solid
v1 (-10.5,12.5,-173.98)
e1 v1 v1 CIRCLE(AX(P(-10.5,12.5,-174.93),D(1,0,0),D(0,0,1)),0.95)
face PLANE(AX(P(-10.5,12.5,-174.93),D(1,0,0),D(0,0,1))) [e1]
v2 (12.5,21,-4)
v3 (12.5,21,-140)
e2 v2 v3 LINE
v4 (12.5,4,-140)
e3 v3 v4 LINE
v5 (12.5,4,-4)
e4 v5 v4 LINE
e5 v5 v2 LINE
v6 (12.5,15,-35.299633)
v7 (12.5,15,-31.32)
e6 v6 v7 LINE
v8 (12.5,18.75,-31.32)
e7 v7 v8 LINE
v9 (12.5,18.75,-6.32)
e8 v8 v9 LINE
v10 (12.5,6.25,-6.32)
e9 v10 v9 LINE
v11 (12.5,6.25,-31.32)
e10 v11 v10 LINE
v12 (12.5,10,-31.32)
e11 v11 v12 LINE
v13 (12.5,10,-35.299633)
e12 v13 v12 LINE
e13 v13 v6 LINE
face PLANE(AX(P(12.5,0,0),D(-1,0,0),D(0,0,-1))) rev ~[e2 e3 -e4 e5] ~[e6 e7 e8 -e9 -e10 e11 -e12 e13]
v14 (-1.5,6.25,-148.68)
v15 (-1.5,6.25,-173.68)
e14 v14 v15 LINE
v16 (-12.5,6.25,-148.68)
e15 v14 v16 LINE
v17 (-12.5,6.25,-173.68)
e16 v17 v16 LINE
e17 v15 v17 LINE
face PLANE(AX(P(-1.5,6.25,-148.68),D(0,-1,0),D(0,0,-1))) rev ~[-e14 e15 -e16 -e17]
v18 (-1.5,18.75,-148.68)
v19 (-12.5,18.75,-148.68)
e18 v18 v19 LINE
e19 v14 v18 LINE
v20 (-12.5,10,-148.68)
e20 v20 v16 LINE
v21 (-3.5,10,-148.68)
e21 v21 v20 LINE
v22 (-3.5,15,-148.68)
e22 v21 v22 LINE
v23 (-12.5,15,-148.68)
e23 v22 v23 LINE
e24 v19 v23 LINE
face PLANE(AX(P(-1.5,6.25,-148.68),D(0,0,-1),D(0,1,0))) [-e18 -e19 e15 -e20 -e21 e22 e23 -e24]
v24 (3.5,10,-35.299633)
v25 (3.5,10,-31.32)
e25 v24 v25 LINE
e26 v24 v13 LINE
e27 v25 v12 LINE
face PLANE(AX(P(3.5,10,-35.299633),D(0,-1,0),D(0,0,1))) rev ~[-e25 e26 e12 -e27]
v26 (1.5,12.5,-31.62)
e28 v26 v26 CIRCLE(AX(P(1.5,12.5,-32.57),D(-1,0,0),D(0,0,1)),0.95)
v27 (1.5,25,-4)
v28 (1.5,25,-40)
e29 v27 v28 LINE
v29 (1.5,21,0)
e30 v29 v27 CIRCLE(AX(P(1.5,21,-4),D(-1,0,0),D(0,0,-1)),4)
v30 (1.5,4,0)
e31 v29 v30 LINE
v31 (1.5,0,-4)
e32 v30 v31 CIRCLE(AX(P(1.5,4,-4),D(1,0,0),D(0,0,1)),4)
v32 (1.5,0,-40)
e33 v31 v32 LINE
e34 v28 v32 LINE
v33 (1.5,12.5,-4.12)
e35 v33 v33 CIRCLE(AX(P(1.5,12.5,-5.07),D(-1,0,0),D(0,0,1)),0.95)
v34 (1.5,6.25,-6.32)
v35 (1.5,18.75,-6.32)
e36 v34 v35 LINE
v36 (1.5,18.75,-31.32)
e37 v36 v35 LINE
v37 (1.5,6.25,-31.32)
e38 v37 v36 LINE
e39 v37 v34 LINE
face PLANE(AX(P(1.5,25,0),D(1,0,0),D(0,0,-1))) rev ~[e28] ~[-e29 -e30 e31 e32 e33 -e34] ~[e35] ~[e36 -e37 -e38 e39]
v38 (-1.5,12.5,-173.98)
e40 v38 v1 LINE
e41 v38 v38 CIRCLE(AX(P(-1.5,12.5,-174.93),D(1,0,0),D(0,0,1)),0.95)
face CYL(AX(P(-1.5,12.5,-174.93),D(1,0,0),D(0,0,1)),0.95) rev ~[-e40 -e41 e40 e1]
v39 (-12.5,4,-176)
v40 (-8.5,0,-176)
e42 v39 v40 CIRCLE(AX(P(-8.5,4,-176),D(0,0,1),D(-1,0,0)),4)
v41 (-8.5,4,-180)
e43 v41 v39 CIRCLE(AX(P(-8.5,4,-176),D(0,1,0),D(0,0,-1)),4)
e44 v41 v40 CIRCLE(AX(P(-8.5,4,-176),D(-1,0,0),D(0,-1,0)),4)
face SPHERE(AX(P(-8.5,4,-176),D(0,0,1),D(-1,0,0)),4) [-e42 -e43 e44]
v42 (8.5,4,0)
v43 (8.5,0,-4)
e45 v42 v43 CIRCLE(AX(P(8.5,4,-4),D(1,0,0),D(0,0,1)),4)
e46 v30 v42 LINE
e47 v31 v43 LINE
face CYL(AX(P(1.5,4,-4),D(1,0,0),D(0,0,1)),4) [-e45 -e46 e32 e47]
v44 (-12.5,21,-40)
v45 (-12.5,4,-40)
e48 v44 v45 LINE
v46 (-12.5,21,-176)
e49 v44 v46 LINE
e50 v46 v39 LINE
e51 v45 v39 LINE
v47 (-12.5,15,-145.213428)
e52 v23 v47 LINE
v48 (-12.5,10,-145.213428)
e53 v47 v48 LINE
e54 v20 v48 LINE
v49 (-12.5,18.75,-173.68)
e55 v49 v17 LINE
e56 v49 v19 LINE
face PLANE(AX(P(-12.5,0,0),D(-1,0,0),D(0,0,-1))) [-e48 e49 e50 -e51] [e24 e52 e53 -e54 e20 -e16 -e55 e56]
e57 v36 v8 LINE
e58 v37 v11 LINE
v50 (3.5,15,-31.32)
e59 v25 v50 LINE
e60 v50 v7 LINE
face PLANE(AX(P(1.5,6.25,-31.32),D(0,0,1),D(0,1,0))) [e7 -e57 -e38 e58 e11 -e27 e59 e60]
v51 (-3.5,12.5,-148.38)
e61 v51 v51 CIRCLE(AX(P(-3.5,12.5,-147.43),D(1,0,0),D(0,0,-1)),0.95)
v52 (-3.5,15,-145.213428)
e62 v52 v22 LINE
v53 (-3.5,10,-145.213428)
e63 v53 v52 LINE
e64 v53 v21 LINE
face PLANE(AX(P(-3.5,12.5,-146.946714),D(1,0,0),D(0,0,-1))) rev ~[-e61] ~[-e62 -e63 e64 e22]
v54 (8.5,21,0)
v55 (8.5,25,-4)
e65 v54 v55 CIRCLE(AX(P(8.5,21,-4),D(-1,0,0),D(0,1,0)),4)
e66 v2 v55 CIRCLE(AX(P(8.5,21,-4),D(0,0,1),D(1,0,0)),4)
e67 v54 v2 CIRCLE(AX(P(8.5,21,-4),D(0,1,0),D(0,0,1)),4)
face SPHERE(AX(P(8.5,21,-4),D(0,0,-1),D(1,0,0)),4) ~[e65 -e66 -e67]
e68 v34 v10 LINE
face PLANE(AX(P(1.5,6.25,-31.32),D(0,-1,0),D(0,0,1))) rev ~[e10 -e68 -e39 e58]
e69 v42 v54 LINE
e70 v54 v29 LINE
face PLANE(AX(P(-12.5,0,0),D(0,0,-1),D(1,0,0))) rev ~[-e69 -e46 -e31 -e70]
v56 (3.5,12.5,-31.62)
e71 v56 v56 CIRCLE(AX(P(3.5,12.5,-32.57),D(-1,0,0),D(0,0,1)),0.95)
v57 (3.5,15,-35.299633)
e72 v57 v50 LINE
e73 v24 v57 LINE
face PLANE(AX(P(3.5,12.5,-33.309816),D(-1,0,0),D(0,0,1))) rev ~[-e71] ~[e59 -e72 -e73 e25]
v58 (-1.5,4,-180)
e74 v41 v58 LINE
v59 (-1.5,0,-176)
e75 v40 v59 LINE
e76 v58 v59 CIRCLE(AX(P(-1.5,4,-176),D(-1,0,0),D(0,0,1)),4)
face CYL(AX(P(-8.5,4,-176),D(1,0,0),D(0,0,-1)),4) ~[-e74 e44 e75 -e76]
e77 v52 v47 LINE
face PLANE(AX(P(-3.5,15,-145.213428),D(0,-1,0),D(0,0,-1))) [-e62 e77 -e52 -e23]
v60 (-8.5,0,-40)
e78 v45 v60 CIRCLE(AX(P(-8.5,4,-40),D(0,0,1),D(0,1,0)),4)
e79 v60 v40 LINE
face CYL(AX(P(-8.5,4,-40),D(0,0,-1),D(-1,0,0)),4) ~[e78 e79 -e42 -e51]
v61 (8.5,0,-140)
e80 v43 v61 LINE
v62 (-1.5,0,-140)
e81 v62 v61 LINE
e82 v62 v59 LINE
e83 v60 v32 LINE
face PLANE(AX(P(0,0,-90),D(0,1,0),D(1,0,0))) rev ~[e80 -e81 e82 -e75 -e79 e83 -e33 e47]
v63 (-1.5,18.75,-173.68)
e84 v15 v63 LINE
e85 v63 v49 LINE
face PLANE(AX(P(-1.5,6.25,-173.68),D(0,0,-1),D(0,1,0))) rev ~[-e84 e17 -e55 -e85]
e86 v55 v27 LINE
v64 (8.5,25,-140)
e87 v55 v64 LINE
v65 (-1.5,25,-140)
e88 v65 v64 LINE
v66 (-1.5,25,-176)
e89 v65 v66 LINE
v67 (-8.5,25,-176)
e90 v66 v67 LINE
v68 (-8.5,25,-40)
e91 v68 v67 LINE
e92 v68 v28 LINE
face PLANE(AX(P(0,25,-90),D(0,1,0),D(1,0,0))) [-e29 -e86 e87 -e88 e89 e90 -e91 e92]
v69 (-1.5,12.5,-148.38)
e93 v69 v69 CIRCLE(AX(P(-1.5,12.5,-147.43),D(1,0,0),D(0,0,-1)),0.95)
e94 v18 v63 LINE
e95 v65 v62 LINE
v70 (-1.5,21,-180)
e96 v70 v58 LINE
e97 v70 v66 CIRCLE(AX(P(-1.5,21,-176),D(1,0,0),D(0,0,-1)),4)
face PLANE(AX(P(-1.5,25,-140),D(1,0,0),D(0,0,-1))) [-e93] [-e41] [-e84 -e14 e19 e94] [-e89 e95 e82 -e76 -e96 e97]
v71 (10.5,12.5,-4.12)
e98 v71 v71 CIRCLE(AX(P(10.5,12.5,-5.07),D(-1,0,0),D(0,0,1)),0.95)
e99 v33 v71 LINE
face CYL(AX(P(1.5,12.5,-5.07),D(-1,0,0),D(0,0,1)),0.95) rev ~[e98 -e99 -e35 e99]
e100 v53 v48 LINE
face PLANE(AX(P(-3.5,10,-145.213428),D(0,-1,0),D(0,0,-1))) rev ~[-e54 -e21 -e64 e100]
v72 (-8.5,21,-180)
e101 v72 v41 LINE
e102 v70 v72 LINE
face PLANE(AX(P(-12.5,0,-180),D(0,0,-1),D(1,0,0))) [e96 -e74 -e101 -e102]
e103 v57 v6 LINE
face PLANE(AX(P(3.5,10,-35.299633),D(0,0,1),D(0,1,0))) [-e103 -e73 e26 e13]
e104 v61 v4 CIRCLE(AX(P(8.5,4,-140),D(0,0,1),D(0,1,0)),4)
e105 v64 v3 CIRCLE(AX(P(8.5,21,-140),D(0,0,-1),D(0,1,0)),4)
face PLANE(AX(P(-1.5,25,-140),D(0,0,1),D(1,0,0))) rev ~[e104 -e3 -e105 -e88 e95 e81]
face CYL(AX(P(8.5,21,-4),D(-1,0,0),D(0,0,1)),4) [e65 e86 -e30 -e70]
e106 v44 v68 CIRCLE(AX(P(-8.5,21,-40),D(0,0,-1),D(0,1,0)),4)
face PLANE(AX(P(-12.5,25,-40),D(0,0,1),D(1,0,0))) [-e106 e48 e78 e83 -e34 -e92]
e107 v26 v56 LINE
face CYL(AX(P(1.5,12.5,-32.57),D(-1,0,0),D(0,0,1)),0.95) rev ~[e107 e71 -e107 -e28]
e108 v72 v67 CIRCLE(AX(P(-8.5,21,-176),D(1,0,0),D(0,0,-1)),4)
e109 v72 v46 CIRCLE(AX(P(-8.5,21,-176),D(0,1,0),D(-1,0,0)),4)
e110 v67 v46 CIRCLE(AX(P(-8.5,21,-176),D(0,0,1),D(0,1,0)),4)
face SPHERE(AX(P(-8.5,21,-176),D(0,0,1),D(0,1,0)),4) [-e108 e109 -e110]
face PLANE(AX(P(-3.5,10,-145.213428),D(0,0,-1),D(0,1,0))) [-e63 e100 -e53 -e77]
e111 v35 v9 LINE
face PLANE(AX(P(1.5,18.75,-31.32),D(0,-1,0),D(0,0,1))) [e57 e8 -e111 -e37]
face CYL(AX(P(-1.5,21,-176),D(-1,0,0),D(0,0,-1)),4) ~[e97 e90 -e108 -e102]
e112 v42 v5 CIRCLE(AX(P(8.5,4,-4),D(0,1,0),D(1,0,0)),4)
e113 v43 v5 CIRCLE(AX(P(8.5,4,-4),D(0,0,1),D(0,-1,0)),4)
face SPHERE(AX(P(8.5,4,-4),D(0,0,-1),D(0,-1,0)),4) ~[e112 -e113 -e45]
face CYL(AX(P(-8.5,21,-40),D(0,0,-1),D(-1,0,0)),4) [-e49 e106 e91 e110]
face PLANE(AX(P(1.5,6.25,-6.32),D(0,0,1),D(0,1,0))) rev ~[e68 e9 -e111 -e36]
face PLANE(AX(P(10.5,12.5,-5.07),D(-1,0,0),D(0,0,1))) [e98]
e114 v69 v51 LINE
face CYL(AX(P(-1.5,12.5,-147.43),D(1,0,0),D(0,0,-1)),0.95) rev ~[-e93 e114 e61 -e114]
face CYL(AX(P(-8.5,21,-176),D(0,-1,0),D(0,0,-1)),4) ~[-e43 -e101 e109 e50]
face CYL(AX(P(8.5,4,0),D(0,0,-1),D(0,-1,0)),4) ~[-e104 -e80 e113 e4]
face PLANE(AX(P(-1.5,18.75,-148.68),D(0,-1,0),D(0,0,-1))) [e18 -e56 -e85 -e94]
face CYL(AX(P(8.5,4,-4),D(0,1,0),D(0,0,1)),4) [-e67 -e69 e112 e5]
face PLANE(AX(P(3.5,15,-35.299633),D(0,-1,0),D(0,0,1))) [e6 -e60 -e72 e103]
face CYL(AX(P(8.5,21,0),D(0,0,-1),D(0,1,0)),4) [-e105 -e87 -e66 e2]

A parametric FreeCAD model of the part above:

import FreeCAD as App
import Part
import Sketcher

V = App.Vector


def edges_at(feature, points):
    """Names of the edges that pass closest to the given points."""
    edges = feature.Shape.Edges
    near = lambda p: min(range(len(edges)), key=lambda i: edges[i].distToShape(Part.Vertex(*p))[0])
    return sorted({f"Edge{near(p) + 1}" for p in points})


def add_polygon(sketch, points):
    """Adds a closed chain of lines whose ends are joined by coincident constraints."""
    first, n = sketch.GeometryCount, len(points)
    for a, b in zip(points, points[1:] + points[:1]):
        sketch.addGeometry(Part.LineSegment(App.Vector(*a, 0), App.Vector(*b, 0)), False)
    for i in range(n):
        sketch.addConstraint(Sketcher.Constraint("Coincident", first + i, 2, first + (i + 1) % n, 1))

doc = App.newDocument("Part")
body = doc.addObject("PartDesign::Body", "Body")

sketch1 = doc.addObject("Sketcher::SketchObject", "Sketch")
body.addObject(sketch1)
sketch1.AttachmentSupport = (doc.XZ_Plane, [""])
sketch1.MapMode = "FlatFace"
add_polygon(sketch1, [(-12.5, -180), (-12.5, 0), (12.5, 0), (12.5, -180)])
sketch1.addConstraint([
    Sketcher.Constraint("Vertical", 0),
    Sketcher.Constraint("Horizontal", 1),
    Sketcher.Constraint("Vertical", 2),
    Sketcher.Constraint("Horizontal", 3),
    Sketcher.Constraint("Symmetric", 0, 2, 1, 2, -1, 1),
    Sketcher.Constraint("DistanceX", 1, 1, 1, 2, 25.0),
    Sketcher.Constraint("DistanceY", 0, 1, 0, 2, 180.0),
])
pad1 = doc.addObject("PartDesign::Pad", "Pad")
body.addObject(pad1)
pad1.Profile = sketch1
pad1.Length = 25
pad1.Reversed = True

sketch2 = doc.addObject("Sketcher::SketchObject", "Sketch001")
body.addObject(sketch2)
sketch2.AttachmentSupport = (doc.XZ_Plane, [""])
sketch2.MapMode = "FlatFace"
sketch2.AttachmentOffset = App.Placement(V(0, 0, -25), App.Rotation())
add_polygon(sketch2, [(-1.5, -180), (-1.5, -140), (12.5, -140), (12.5, -180)])
add_polygon(sketch2, [(-12.5, -40), (-12.5, 0), (1.5, 0), (1.5, -40)])
sketch2.addConstraint([
    Sketcher.Constraint("Vertical", 0),
    Sketcher.Constraint("Horizontal", 1),
    Sketcher.Constraint("Vertical", 2),
    Sketcher.Constraint("Horizontal", 3),
    Sketcher.Constraint("Vertical", 4),
    Sketcher.Constraint("Horizontal", 5),
    Sketcher.Constraint("Vertical", 6),
    Sketcher.Constraint("Horizontal", 7),
    Sketcher.Constraint("PointOnObject", 4, 2, -1),
    Sketcher.Constraint("Equal", 3, 5),
    Sketcher.Constraint("Equal", 2, 4),
    Sketcher.Constraint("DistanceX", 1, 1, 1, 2, 14.0),
    Sketcher.Constraint("DistanceY", 0, 1, 0, 2, 40.0),
    Sketcher.Constraint("DistanceY", 0, 2, -1, 1, 140.0),
    Sketcher.Constraint("DistanceX", 4, 2, 0, 2, 11.0),
    Sketcher.Constraint("DistanceX", 0, 2, -1, 1, 1.5),
])
pocket1 = doc.addObject("PartDesign::Pocket", "Pocket")
body.addObject(pocket1)
pocket1.Profile = sketch2
pocket1.Type = "ThroughAll"
pocket1.Reversed = True

sketch3 = doc.addObject("Sketcher::SketchObject", "Sketch002")
body.addObject(sketch3)
sketch3.AttachmentSupport = (doc.YZ_Plane, [""])
sketch3.MapMode = "FlatFace"
sketch3.AttachmentOffset = App.Placement(V(0, 0, 1.5), App.Rotation())
add_polygon(sketch3, [(18.75, -31.32), (6.25, -31.32), (6.25, -6.32), (18.75, -6.32)])
sketch3.addConstraint([
    Sketcher.Constraint("Horizontal", 0),
    Sketcher.Constraint("Vertical", 1),
    Sketcher.Constraint("Horizontal", 2),
    Sketcher.Constraint("Vertical", 3),
    Sketcher.Constraint("DistanceY", 1, 1, 1, 2, 25.0),
    Sketcher.Constraint("DistanceX", 0, 2, 0, 1, 12.5),
    Sketcher.Constraint("DistanceX", -1, 1, 0, 2, 6.25),
    Sketcher.Constraint("DistanceY", 0, 2, -1, 1, 31.32),
])
pocket2 = doc.addObject("PartDesign::Pocket", "Pocket001")
body.addObject(pocket2)
pocket2.Profile = sketch3
pocket2.Type = "ThroughAll"
pocket2.Reversed = True

sketch4 = doc.addObject("Sketcher::SketchObject", "Sketch003")
body.addObject(sketch4)
sketch4.AttachmentSupport = (doc.YZ_Plane, [""])
sketch4.MapMode = "FlatFace"
sketch4.AttachmentOffset = App.Placement(V(0, 0, 1.5), App.Rotation())
sketch4.addGeometry([
    Part.Circle(V(12.5, -32.57, 0), V(0, 0, 1), 0.95),
    Part.Circle(V(12.5, -5.07, 0), V(0, 0, 1), 0.95),
], False)
sketch4.addConstraint([
    Sketcher.Constraint("Equal", 0, 1),
    Sketcher.Constraint("Vertical", 0, 3, 1, 3),
    Sketcher.Constraint("Diameter", 0, 1.9),
    Sketcher.Constraint("DistanceX", -1, 1, 0, 3, 12.5),
    Sketcher.Constraint("DistanceY", 0, 3, 1, 3, 27.5),
    Sketcher.Constraint("DistanceY", 0, 3, -1, 1, 32.57),
])
pocket3 = doc.addObject("PartDesign::Pocket", "Pocket002")
body.addObject(pocket3)
pocket3.Profile = sketch4
pocket3.Length = 9
pocket3.Reversed = True

sketch5 = doc.addObject("Sketcher::SketchObject", "Sketch004")
body.addObject(sketch5)
sketch5.AttachmentSupport = (doc.YZ_Plane, [""])
sketch5.MapMode = "FlatFace"
sketch5.AttachmentOffset = App.Placement(V(0, 0, -1.5), App.Rotation())
add_polygon(sketch5, [(18.75, -148.68), (6.25, -148.68), (6.25, -173.68), (18.75, -173.68)])
sketch5.addConstraint([
    Sketcher.Constraint("Horizontal", 0),
    Sketcher.Constraint("Vertical", 1),
    Sketcher.Constraint("Horizontal", 2),
    Sketcher.Constraint("Vertical", 3),
    Sketcher.Constraint("DistanceY", 1, 2, 1, 1, 25.0),
    Sketcher.Constraint("DistanceX", 0, 2, 0, 1, 12.5),
    Sketcher.Constraint("DistanceX", -1, 1, 0, 2, 6.25),
    Sketcher.Constraint("DistanceY", 0, 2, -1, 1, 148.68),
])
pocket4 = doc.addObject("PartDesign::Pocket", "Pocket003")
body.addObject(pocket4)
pocket4.Profile = sketch5
pocket4.Type = "ThroughAll"

sketch6 = doc.addObject("Sketcher::SketchObject", "Sketch005")
body.addObject(sketch6)
sketch6.AttachmentSupport = (doc.YZ_Plane, [""])
sketch6.MapMode = "FlatFace"
sketch6.AttachmentOffset = App.Placement(V(0, 0, -1.5), App.Rotation())
sketch6.addGeometry([
    Part.Circle(V(12.5, -147.43, 0), V(0, 0, 1), 0.95),
    Part.Circle(V(12.5, -174.93, 0), V(0, 0, 1), 0.95),
], False)
sketch6.addConstraint([
    Sketcher.Constraint("Equal", 0, 1),
    Sketcher.Constraint("Vertical", 0, 3, 1, 3),
    Sketcher.Constraint("Diameter", 0, 1.9),
    Sketcher.Constraint("DistanceX", -1, 1, 0, 3, 12.5),
    Sketcher.Constraint("DistanceY", 1, 3, 0, 3, 27.5),
    Sketcher.Constraint("DistanceY", 0, 3, -1, 1, 147.43),
])
pocket5 = doc.addObject("PartDesign::Pocket", "Pocket004")
body.addObject(pocket5)
pocket5.Profile = sketch6
pocket5.Length = 9
doc.recompute()

fillet = doc.addObject("PartDesign::Fillet", "Fillet")
body.addObject(fillet)
fillet.Base = (pocket5, edges_at(pocket5, [
    (-12.5, 0, -110),
    (-12.5, 25, -110),
    (12.5, 0, -70),
    (12.5, 25, -70),
]))
fillet.Radius = 4

sketch7 = doc.addObject("Sketcher::SketchObject", "Sketch006")
body.addObject(sketch7)
sketch7.AttachmentSupport = (doc.YZ_Plane, [""])
sketch7.MapMode = "FlatFace"
sketch7.AttachmentOffset = App.Placement(V(0, 0, -3.5), App.Rotation())
add_polygon(sketch7, [(15, -145.213428), (10, -145.213428), (10, -148.68), (15, -148.68)])
sketch7.addConstraint([
    Sketcher.Constraint("Horizontal", 0),
    Sketcher.Constraint("Vertical", 1),
    Sketcher.Constraint("Horizontal", 2),
    Sketcher.Constraint("Vertical", 3),
    Sketcher.Constraint("DistanceX", 0, 2, 0, 1, 5.0),
    Sketcher.Constraint("DistanceX", -1, 1, 0, 2, 10.0),
    Sketcher.Constraint("DistanceY", 1, 2, -1, 1, 148.68),
    Sketcher.Constraint("DistanceY", 1, 2, 1, 1, 3.466572),
])
pocket6 = doc.addObject("PartDesign::Pocket", "Pocket005")
body.addObject(pocket6)
pocket6.Profile = sketch7
pocket6.Length = 10

sketch8 = doc.addObject("Sketcher::SketchObject", "Sketch007")
body.addObject(sketch8)
sketch8.AttachmentSupport = (doc.YZ_Plane, [""])
sketch8.MapMode = "FlatFace"
sketch8.AttachmentOffset = App.Placement(V(0, 0, 3.5), App.Rotation())
add_polygon(sketch8, [(15, -35.299633), (10, -35.299633), (10, -31.32), (15, -31.32)])
sketch8.addConstraint([
    Sketcher.Constraint("Horizontal", 0),
    Sketcher.Constraint("Vertical", 1),
    Sketcher.Constraint("Horizontal", 2),
    Sketcher.Constraint("Vertical", 3),
    Sketcher.Constraint("DistanceX", 0, 2, 0, 1, 5.0),
    Sketcher.Constraint("DistanceX", -1, 1, 0, 2, 10.0),
    Sketcher.Constraint("DistanceY", 1, 2, -1, 1, 31.32),
    Sketcher.Constraint("DistanceY", 1, 1, 1, 2, 3.979633),
])
pocket7 = doc.addObject("PartDesign::Pocket", "Pocket006")
body.addObject(pocket7)
pocket7.Profile = sketch8
pocket7.Length = 14
pocket7.Reversed = True
doc.recompute()

fillet2 = doc.addObject("PartDesign::Fillet", "Fillet001")
body.addObject(fillet2)
fillet2.Base = (pocket7, edges_at(pocket7, [
    (-5, 0, -180),
    (-12.5, 12.5, -180),
    (-5, 25, -180),
    (-11.328, 23.828, -180),
    (-11.328, 1.172, -180),
]))
fillet2.Radius = 4
doc.recompute()

fillet3 = doc.addObject("PartDesign::Fillet", "Fillet002")
body.addObject(fillet3)
fillet3.Base = (fillet2, edges_at(fillet2, [
    (12.5, 12.5, 0),
    (11.328, 23.828, 0),
    (11.328, 1.172, 0),
    (5, 0, 0),
    (5, 25, 0),
]))
fillet3.Radius = 4

doc.recompute()
